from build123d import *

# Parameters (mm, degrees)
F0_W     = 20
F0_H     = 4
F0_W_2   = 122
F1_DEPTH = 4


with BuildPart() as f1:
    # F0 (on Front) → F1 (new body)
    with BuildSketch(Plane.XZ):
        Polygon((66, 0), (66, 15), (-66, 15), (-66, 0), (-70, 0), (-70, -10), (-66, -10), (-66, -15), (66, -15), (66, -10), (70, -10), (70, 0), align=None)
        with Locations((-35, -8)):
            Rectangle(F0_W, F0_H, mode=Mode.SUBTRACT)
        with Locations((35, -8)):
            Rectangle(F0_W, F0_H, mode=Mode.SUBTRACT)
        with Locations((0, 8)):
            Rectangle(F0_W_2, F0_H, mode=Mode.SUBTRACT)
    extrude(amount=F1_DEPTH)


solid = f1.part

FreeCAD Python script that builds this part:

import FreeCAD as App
import Part
import Sketcher


def add_polygon(sketch, points):
    """Adds a closed chain of lines whose ends are joined by coincident constraints."""
    first, n = sketch.GeometryCount, len(points)
    for a, b in zip(points, points[1:] + points[:1]):
        sketch.addGeometry(Part.LineSegment(App.Vector(*a, 0), App.Vector(*b, 0)), False)
    for i in range(n):
        sketch.addConstraint(Sketcher.Constraint("Coincident", first + i, 2, first + (i + 1) % n, 1))

doc = App.newDocument("Part")
params = doc.addObject("Spreadsheet::Sheet", "Params")
for row, (alias, value) in enumerate([
    ("sketch1_width", "132 mm"),
    ("sketch1_width2", "4 mm"),
    ("sketch1_width3", "20 mm"),
    ("sketch1_width4", "122 mm"),
    ("sketch1_height", "15 mm"),
    ("pad1_length", "4 mm"),
], start=1):
    params.set(f"A{row}", alias)
    params.set(f"B{row}", "=" + value)
    params.setAlias(f"B{row}", alias)

body = doc.addObject("PartDesign::Body", "Body")

# Sketch on XZ plane
sketch1 = doc.addObject("Sketcher::SketchObject", "Sketch")
body.addObject(sketch1)
sketch1.AttachmentSupport = (doc.XZ_Plane, [""])
sketch1.MapMode = "FlatFace"
add_polygon(sketch1, [(66, 0), (66, 15), (-66, 15), (-66, 0), (-70, 0), (-70, -10), (-66, -10), (-66, -15), (66, -15), (66, -10), (70, -10), (70, 0)])  # lines 0-11
add_polygon(sketch1, [(-25, -10), (-45, -10), (-45, -6), (-25, -6)])  # lines 12-15
add_polygon(sketch1, [(45, -10), (25, -10), (25, -6), (45, -6)])  # lines 16-19
add_polygon(sketch1, [(61, 6), (-61, 6), (-61, 10), (61, 10)])  # lines 20-23
sketch1.addConstraint([
    Sketcher.Constraint("Vertical", 0),
    Sketcher.Constraint("Horizontal", 1),
    Sketcher.Constraint("Vertical", 2),
    Sketcher.Constraint("Horizontal", 3),
    Sketcher.Constraint("Vertical", 4),
    Sketcher.Constraint("Horizontal", 5),
    Sketcher.Constraint("Vertical", 6),
    Sketcher.Constraint("Horizontal", 7),
    Sketcher.Constraint("Vertical", 8),
    Sketcher.Constraint("Horizontal", 9),
    Sketcher.Constraint("Vertical", 10),
    Sketcher.Constraint("Horizontal", 11),
    Sketcher.Constraint("Horizontal", 12),
    Sketcher.Constraint("Vertical", 13),
    Sketcher.Constraint("Horizontal", 14),
    Sketcher.Constraint("Vertical", 15),
    Sketcher.Constraint("Horizontal", 16),
    Sketcher.Constraint("Vertical", 17),
    Sketcher.Constraint("Horizontal", 18),
    Sketcher.Constraint("Vertical", 19),
    Sketcher.Constraint("Horizontal", 20),
    Sketcher.Constraint("Vertical", 21),
    Sketcher.Constraint("Horizontal", 22),
    Sketcher.Constraint("Vertical", 23),
    Sketcher.Constraint("Symmetric", 0, 2, 6, 2, -1, 1),
    Sketcher.Constraint("Symmetric", 3, 2, 10, 2, -1, 1),
    Sketcher.Constraint("Symmetric", 5, 2, 8, 2, -2),
    Sketcher.Constraint("Symmetric", 2, 2, 11, 2, -2),
    Sketcher.Constraint("Symmetric", 15, 2, 16, 2, -2),
    Sketcher.Constraint("Symmetric", 13, 2, 18, 2, -2),
    Sketcher.Constraint("Horizontal", 9, 2, 12, 2),
    Sketcher.Constraint("Equal", 11, 13),
    Sketcher.Constraint("Equal", 19, 21),
    Sketcher.Constraint("DistanceX", 1, 2, 1, 1, 132.0),
    Sketcher.Constraint("DistanceX", 3, 2, 3, 1, 4.0),
    Sketcher.Constraint("DistanceX", 12, 2, 12, 1, 20.0),
    Sketcher.Constraint("DistanceX", 20, 2, 20, 1, 122.0),
    Sketcher.Constraint("DistanceY", 0, 1, 0, 2, 15.0),
    Sketcher.Constraint("DistanceY", 4, 2, 4, 1, 10.0),
    Sketcher.Constraint("DistanceX", 12, 2, -1, 1, 45.0),
    Sketcher.Constraint("DistanceX", 20, 2, -1, 1, 61.0),
    Sketcher.Constraint("DistanceY", -1, 1, 20, 2, 6.0),
])
sketch1.setExpression("Constraints[57]", "Params.sketch1_width")
sketch1.setExpression("Constraints[58]", "Params.sketch1_width2")
sketch1.setExpression("Constraints[59]", "Params.sketch1_width3")
sketch1.setExpression("Constraints[60]", "Params.sketch1_width4")
sketch1.setExpression("Constraints[61]", "Params.sketch1_height")
pad1 = doc.addObject("PartDesign::Pad", "Pad")
body.addObject(pad1)
pad1.Profile = sketch1
pad1.setExpression("Length", "Params.pad1_length")

doc.recompute()
